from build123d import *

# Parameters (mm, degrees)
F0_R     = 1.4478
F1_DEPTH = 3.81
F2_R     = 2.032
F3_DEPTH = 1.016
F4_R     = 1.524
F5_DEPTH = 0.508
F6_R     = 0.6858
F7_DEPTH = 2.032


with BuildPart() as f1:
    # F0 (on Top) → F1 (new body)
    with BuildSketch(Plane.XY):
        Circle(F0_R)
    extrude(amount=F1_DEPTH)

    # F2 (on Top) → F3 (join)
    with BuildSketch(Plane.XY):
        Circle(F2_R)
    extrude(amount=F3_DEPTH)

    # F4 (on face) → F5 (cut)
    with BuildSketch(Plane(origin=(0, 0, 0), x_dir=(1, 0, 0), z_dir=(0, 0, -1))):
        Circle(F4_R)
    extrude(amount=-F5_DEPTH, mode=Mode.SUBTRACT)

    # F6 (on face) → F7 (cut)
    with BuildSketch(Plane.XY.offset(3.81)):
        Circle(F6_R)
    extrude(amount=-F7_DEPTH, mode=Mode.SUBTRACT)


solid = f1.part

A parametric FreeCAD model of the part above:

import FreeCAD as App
import Part
import Sketcher

V = App.Vector
Q = App.Units.Quantity

doc = App.newDocument("Part")
params = doc.addObject("Spreadsheet::Sheet", "Params")
for row, (alias, value) in enumerate([
    ("sketch1_diameter", "0.114 in"),
    ("pad1_length", "0.15 in"),
    ("sketch2_diameter", "0.16 in"),
    ("pad2_length", "0.04 in"),
    ("sketch3_diameter", "0.12 in"),
    ("pocket1_length", "0.02 in"),
    ("sketch4_diameter", "0.054 in"),
    ("pocket2_length", "0.08 in"),
], start=1):
    params.set(f"A{row}", alias)
    params.set(f"B{row}", "=" + value)
    params.setAlias(f"B{row}", alias)

body = doc.addObject("PartDesign::Body", "Body")

sketch1 = body.newObject("Sketcher::SketchObject", "Sketch")
sketch1.AttachmentSupport = (doc.getObject("XY_Plane"), [""])
sketch1.MapMode = "FlatFace"
sketch1.addGeometry(Part.Circle(V(0, 0, 0), V(0, 0, 1), 1.4), False)
sketch1.addConstraint([
    Sketcher.Constraint("Coincident", 0, 3, -1, 1),
    Sketcher.Constraint("Diameter", 0, Q("0.114 in")),
])
sketch1.setExpression("Constraints[1]", "Params.sketch1_diameter")
pad1 = body.newObject("PartDesign::Pad", "Pad")
pad1.Profile = sketch1
pad1.setExpression("Length", "Params.pad1_length")

sketch2 = body.newObject("Sketcher::SketchObject", "Sketch001")
sketch2.AttachmentSupport = (doc.getObject("XY_Plane"), [""])
sketch2.MapMode = "FlatFace"
sketch2.addGeometry(Part.Circle(V(0, 0, 0), V(0, 0, 1), 2), False)
sketch2.addConstraint([
    Sketcher.Constraint("Coincident", 0, 3, -1, 1),
    Sketcher.Constraint("Diameter", 0, Q("0.16 in")),
])
sketch2.setExpression("Constraints[1]", "Params.sketch2_diameter")
pad2 = body.newObject("PartDesign::Pad", "Pad001")
pad2.Profile = sketch2
pad2.setExpression("Length", "Params.pad2_length")

sketch3 = body.newObject("Sketcher::SketchObject", "Sketch002")
sketch3.AttachmentSupport = (doc.getObject("XY_Plane"), [""])
sketch3.MapMode = "FlatFace"
sketch3.addGeometry(Part.Circle(V(0, 0, 0), V(0, 0, 1), 1.5), False)
sketch3.addConstraint([
    Sketcher.Constraint("Coincident", 0, 3, -1, 1),
    Sketcher.Constraint("Diameter", 0, Q("0.12 in")),
])
sketch3.setExpression("Constraints[1]", "Params.sketch3_diameter")
pocket1 = body.newObject("PartDesign::Pocket", "Pocket")
pocket1.Profile = sketch3
pocket1.setExpression("Length", "Params.pocket1_length")
pocket1.Reversed = True

sketch4 = body.newObject("Sketcher::SketchObject", "Sketch003")
sketch4.AttachmentSupport = (doc.getObject("XY_Plane"), [""])
sketch4.MapMode = "FlatFace"
sketch4.AttachmentOffset = App.Placement(V(0, 0, 0.15 * 25.4), App.Rotation())
sketch4.addGeometry(Part.Circle(V(0, 0, 0), V(0, 0, 1), 0.7), False)
sketch4.addConstraint([
    Sketcher.Constraint("Coincident", 0, 3, -1, 1),
    Sketcher.Constraint("Diameter", 0, Q("0.054 in")),
])
sketch4.setExpression("Constraints[1]", "Params.sketch4_diameter")
pocket2 = body.newObject("PartDesign::Pocket", "Pocket001")
pocket2.Profile = sketch4
pocket2.setExpression("Length", "Params.pocket2_length")

doc.recompute()
